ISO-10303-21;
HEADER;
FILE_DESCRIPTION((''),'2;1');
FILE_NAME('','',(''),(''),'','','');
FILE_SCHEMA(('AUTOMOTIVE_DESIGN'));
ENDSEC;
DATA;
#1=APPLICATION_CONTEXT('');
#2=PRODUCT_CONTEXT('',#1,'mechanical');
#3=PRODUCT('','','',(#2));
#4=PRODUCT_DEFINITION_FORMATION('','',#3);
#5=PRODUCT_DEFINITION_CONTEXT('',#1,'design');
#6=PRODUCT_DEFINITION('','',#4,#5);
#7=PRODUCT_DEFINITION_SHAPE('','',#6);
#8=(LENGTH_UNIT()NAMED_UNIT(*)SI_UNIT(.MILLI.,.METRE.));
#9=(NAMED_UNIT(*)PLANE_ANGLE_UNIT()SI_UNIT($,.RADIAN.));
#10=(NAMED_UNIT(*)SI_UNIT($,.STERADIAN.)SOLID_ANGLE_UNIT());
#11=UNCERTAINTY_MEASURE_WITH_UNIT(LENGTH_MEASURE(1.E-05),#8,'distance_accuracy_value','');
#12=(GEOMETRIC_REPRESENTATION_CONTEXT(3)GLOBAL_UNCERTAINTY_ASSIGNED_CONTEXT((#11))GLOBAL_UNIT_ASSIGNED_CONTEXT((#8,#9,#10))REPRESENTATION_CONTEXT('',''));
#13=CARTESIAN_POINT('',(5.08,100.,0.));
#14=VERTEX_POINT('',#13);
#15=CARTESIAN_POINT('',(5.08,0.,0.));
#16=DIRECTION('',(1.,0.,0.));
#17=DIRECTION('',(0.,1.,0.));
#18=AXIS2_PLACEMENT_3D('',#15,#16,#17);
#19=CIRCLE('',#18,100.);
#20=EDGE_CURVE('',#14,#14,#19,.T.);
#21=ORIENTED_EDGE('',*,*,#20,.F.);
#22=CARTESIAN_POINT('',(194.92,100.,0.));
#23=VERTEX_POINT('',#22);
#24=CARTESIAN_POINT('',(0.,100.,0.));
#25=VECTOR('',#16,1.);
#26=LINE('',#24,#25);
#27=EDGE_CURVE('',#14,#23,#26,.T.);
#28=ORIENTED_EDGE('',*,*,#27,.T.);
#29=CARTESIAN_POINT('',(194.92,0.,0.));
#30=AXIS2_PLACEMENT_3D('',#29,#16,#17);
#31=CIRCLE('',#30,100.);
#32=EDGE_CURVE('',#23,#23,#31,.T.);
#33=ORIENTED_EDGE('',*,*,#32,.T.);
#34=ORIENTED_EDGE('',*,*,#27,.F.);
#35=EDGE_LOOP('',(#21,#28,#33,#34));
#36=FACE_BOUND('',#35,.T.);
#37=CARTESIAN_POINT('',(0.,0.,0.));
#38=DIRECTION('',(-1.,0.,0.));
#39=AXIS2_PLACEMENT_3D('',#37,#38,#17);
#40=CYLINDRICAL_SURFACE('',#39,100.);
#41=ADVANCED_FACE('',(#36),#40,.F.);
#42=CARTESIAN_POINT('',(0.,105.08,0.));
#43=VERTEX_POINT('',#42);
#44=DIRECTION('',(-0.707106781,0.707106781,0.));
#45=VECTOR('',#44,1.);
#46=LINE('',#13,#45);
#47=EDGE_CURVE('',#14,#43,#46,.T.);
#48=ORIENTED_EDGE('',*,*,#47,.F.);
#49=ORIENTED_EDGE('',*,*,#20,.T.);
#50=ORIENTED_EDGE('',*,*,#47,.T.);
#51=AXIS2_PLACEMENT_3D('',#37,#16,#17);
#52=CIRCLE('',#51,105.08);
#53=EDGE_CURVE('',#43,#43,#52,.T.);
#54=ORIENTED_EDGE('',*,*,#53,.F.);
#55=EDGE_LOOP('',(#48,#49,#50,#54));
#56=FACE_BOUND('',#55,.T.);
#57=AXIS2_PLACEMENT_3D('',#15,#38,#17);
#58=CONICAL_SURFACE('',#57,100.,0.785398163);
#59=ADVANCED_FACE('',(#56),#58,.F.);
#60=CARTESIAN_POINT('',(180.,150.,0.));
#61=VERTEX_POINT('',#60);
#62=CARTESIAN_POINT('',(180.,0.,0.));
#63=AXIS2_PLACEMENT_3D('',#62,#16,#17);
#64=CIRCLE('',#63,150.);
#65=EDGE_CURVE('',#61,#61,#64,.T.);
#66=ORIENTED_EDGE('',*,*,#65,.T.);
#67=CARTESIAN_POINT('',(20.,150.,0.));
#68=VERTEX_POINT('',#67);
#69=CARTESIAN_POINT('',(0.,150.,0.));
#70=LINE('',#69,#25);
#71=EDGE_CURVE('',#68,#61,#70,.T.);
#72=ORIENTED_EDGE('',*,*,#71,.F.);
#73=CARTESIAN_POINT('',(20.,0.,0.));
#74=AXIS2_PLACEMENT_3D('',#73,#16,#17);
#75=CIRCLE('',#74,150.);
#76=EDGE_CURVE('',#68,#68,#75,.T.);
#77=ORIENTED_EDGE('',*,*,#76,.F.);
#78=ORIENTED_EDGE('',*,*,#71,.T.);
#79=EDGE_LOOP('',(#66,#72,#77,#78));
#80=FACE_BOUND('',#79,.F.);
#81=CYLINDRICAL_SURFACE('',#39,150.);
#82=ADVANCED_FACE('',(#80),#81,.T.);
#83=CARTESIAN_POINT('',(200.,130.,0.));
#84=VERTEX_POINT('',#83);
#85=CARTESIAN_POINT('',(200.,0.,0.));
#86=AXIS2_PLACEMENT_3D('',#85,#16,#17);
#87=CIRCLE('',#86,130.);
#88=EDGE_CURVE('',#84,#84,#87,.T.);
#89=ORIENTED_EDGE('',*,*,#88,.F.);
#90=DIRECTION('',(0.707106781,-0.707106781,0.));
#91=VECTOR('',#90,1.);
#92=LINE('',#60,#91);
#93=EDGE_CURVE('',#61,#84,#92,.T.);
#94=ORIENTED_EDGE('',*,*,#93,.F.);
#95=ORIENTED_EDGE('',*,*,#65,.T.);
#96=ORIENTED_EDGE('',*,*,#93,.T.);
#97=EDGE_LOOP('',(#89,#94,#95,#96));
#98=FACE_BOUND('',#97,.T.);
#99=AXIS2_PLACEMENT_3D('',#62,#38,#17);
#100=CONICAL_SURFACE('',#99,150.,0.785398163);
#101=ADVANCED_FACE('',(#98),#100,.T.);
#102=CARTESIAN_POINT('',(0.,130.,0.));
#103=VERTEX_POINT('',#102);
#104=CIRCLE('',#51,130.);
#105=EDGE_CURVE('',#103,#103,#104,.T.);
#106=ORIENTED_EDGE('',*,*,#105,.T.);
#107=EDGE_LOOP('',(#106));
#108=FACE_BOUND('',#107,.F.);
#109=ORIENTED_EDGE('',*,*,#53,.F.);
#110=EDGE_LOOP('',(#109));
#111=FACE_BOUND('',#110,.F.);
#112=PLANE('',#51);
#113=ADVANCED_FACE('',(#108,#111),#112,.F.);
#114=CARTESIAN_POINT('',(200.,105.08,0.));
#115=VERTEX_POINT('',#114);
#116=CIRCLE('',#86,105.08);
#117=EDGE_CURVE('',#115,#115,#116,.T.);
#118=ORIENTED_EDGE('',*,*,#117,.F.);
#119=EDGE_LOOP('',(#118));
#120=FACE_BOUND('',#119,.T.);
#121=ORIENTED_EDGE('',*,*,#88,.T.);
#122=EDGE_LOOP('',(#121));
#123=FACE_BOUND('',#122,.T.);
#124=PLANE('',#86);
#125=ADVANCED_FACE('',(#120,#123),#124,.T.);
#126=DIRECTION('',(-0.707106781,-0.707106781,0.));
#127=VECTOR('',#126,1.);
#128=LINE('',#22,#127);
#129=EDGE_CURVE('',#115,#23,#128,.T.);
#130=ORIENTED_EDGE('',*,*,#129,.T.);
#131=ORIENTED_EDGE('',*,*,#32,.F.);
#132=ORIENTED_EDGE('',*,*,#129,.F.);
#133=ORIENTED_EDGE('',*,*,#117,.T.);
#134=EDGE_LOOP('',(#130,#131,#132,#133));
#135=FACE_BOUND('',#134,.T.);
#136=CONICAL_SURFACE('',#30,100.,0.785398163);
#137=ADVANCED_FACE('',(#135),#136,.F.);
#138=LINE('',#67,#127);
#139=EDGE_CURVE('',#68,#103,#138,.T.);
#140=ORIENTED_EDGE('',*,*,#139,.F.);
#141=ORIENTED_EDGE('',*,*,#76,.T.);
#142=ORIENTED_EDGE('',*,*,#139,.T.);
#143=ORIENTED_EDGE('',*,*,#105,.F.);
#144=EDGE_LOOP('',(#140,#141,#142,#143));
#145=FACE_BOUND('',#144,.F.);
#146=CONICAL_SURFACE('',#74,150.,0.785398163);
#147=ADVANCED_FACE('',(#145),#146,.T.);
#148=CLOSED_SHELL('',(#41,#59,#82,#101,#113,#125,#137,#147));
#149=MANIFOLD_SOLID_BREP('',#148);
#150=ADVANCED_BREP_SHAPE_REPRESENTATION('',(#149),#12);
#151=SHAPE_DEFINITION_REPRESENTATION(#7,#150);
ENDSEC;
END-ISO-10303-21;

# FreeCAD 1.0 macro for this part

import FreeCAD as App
import Part
import Sketcher

V = App.Vector
Q = App.Units.Quantity


def edges_at(feature, points):
    """Names of the edges that pass closest to the given points."""
    edges = feature.Shape.Edges
    near = lambda p: min(range(len(edges)), key=lambda i: edges[i].distToShape(Part.Vertex(*p))[0])
    return sorted({f"Edge{near(p) + 1}" for p in points})

doc = App.newDocument("Part")
body = doc.addObject("PartDesign::Body", "Body")

sketch1 = doc.addObject("Sketcher::SketchObject", "Sketch")
body.addObject(sketch1)
sketch1.AttachmentSupport = (doc.YZ_Plane, [""])
sketch1.MapMode = "FlatFace"
sketch1.addGeometry([
    Part.Circle(V(0, 0, 0), V(0, 0, 1), 150),
    Part.Circle(V(0, 0, 0), V(0, 0, 1), 100),
], False)
sketch1.addConstraint([
    Sketcher.Constraint("Coincident", 0, 3, -1, 1),
    Sketcher.Constraint("Coincident", 1, 3, -1, 1),
    Sketcher.Constraint("Diameter", 0, Q("300 mm")),
    Sketcher.Constraint("Diameter", 1, Q("200 mm")),
])
pad1 = doc.addObject("PartDesign::Pad", "Pad")
body.addObject(pad1)
pad1.Profile = sketch1
pad1.Length = 200
doc.recompute()

chamfer = doc.addObject("PartDesign::Chamfer", "Chamfer")
body.addObject(chamfer)
chamfer.Base = (pad1, edges_at(pad1, [(200, -150, 0)]))
chamfer.Size = 20
doc.recompute()

chamfer2 = doc.addObject("PartDesign::Chamfer", "Chamfer001")
body.addObject(chamfer2)
chamfer2.Base = (chamfer, edges_at(chamfer, [(0, -150, 0)]))
chamfer2.Size = 20
doc.recompute()

chamfer3 = doc.addObject("PartDesign::Chamfer", "Chamfer002")
body.addObject(chamfer3)
chamfer3.Base = (chamfer2, edges_at(chamfer2, [(200, -100, 0)]))
chamfer3.Size = 5.08
doc.recompute()

chamfer4 = doc.addObject("PartDesign::Chamfer", "Chamfer003")
body.addObject(chamfer4)
chamfer4.Base = (chamfer3, edges_at(chamfer3, [(0, -100, 0)]))
chamfer4.Size = 5.08

doc.recompute()
